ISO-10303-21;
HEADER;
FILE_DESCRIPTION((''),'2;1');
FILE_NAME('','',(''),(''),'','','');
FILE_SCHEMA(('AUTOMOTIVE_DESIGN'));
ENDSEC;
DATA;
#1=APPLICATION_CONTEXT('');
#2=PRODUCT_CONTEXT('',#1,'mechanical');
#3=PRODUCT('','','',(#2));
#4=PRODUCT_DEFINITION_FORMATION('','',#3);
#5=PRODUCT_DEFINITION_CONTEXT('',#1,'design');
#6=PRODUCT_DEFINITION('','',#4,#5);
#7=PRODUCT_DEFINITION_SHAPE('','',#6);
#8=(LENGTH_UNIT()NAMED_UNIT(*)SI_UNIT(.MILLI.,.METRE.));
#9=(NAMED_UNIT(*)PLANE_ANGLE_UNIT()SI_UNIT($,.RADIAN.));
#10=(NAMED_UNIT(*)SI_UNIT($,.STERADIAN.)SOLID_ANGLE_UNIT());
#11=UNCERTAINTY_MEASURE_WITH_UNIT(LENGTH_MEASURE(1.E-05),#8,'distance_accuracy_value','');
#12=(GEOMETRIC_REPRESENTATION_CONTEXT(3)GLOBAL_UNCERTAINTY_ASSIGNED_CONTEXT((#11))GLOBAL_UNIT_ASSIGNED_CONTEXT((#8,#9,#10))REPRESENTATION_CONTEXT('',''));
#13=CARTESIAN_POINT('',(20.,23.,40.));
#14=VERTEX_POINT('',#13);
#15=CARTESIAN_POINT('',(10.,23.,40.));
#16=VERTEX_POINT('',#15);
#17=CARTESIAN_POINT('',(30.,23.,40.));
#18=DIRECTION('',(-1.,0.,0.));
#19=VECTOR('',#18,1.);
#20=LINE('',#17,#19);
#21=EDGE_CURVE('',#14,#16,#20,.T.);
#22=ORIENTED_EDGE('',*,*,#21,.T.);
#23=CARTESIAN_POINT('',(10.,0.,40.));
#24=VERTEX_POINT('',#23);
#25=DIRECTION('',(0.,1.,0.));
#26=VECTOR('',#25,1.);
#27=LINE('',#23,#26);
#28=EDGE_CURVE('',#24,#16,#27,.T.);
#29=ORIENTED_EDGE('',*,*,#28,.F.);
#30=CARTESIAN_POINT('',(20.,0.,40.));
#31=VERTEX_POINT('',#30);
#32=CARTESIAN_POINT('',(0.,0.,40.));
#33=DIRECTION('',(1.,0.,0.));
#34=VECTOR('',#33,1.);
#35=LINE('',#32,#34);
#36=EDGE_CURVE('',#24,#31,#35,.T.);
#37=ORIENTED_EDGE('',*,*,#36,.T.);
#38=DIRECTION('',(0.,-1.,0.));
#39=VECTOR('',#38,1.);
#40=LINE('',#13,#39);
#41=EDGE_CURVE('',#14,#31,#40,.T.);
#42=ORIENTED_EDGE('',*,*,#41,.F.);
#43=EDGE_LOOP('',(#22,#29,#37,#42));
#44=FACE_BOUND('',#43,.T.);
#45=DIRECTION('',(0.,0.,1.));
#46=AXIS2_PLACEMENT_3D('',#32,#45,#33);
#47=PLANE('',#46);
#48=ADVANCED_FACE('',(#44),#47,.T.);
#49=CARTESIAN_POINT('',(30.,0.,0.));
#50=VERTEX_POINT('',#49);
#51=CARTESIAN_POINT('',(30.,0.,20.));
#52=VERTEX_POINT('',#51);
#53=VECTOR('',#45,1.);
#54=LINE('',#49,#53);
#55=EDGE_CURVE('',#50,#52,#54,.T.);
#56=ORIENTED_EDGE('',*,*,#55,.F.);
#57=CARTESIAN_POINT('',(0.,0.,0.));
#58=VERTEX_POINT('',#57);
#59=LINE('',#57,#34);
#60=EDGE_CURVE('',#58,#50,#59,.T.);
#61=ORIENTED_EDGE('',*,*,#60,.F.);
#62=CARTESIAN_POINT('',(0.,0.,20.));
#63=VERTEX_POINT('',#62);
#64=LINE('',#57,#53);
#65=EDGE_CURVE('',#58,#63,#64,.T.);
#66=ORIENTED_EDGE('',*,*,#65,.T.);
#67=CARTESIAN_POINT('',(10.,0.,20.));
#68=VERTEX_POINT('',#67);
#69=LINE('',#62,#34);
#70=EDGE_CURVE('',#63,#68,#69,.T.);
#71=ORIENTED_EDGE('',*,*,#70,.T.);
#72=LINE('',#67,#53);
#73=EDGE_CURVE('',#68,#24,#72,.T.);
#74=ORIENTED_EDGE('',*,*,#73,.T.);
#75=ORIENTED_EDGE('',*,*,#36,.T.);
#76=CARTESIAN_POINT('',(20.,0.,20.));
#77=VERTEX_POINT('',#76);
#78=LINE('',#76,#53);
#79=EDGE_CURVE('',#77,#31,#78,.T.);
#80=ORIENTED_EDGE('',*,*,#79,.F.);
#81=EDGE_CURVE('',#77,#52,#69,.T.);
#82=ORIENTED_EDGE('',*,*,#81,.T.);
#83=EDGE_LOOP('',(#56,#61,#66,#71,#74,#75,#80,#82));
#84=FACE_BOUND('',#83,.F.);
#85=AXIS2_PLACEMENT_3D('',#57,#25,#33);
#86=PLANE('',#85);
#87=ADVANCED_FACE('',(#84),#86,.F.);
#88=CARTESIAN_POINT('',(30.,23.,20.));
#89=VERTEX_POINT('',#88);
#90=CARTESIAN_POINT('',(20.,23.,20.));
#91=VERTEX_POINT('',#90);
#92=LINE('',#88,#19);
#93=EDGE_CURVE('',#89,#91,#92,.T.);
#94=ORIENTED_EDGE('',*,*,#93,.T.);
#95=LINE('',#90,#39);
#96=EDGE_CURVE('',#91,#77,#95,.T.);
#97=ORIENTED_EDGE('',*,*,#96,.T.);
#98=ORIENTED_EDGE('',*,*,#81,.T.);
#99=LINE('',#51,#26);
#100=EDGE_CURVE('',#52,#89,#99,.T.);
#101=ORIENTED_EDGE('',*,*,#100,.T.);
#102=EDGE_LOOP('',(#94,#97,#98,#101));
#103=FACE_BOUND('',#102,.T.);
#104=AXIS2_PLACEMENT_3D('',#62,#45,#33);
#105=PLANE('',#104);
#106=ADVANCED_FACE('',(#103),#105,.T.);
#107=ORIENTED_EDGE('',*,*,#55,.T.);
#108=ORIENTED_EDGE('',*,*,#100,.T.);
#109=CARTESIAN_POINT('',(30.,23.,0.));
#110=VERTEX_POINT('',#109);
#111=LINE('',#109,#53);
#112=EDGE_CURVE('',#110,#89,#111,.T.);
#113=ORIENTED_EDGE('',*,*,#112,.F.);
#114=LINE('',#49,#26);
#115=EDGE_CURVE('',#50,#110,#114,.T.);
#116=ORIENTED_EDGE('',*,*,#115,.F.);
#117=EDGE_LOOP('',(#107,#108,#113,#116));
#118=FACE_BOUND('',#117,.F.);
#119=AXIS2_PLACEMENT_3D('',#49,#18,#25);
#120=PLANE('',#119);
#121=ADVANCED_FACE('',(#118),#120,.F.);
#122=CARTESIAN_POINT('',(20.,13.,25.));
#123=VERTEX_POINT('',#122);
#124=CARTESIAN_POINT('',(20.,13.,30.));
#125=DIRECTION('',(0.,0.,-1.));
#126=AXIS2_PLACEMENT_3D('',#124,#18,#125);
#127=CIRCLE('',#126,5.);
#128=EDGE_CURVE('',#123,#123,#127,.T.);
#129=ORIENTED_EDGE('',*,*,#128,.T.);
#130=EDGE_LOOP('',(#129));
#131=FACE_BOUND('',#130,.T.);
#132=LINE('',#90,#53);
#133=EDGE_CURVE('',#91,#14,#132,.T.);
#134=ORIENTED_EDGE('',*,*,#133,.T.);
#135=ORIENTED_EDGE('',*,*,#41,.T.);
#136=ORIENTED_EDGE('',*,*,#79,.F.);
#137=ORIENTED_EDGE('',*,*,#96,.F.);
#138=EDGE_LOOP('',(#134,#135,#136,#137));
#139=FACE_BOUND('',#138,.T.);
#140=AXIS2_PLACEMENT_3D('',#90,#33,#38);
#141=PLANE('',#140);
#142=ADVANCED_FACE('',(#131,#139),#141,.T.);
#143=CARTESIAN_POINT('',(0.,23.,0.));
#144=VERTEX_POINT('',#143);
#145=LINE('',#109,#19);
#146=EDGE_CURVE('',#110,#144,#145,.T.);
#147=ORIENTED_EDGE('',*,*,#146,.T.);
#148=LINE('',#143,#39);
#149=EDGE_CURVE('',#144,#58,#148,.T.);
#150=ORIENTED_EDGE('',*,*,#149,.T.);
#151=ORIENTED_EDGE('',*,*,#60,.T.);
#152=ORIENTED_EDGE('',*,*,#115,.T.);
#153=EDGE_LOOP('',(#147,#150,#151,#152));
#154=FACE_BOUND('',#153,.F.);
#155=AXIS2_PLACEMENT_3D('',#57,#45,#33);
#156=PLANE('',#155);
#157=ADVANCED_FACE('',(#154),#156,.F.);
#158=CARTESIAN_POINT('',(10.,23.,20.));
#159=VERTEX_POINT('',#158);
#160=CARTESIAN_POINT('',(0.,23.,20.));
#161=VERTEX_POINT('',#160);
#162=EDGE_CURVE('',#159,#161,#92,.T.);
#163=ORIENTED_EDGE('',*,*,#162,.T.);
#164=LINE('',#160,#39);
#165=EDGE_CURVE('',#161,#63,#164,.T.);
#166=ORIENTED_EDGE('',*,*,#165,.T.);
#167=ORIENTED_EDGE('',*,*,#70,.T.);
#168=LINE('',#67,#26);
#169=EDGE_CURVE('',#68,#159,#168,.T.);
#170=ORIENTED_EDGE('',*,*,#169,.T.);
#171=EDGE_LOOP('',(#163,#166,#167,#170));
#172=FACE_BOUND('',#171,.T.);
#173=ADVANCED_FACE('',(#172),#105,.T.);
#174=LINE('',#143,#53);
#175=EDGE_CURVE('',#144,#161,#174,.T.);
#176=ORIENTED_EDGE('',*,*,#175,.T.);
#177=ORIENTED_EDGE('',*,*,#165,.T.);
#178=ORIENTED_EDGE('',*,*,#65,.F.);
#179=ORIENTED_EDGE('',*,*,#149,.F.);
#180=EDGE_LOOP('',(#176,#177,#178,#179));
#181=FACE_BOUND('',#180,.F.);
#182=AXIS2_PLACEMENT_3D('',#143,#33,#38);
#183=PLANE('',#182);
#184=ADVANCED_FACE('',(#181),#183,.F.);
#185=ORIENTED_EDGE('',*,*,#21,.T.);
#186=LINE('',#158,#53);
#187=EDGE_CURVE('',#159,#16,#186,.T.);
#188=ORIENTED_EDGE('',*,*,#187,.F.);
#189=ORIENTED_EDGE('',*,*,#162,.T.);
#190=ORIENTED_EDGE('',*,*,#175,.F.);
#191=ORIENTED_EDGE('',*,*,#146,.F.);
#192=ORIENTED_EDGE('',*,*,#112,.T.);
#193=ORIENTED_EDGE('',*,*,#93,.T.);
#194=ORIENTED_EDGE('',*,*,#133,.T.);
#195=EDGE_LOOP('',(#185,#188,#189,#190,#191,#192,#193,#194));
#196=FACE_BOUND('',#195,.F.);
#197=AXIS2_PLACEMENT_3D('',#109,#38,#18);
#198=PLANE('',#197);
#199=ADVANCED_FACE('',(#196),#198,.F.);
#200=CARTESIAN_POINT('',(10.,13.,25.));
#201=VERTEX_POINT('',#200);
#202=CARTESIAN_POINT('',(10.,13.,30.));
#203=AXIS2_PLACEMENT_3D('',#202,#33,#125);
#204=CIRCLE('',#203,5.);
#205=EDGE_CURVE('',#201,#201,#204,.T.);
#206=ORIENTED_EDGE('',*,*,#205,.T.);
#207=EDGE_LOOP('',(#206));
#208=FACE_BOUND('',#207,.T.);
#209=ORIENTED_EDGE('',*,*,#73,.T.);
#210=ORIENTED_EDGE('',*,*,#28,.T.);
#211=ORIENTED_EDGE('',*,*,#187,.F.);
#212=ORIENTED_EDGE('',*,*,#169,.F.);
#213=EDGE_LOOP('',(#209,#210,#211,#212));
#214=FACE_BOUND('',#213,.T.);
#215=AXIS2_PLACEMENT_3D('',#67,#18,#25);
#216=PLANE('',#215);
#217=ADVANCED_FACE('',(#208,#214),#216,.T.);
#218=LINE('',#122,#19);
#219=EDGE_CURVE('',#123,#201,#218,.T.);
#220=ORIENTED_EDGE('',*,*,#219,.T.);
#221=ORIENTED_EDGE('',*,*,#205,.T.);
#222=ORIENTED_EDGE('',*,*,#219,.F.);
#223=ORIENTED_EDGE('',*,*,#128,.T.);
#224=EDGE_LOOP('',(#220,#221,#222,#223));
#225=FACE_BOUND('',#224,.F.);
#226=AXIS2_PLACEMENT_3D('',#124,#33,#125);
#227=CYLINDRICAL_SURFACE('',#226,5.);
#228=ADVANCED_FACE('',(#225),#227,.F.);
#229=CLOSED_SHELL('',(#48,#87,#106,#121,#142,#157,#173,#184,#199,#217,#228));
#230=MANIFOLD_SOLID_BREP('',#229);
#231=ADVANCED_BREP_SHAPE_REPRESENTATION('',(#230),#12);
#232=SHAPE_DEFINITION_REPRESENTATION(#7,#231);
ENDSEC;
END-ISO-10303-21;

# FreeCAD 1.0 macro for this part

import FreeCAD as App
import Part
import Sketcher
Q = App.Units.Quantity


def add_polygon(sketch, points):
    """Adds a closed chain of lines whose ends are joined by coincident constraints."""
    first, n = sketch.GeometryCount, len(points)
    for a, b in zip(points, points[1:] + points[:1]):
        sketch.addGeometry(Part.LineSegment(App.Vector(*a, 0), App.Vector(*b, 0)), False)
    for i in range(n):
        sketch.addConstraint(Sketcher.Constraint("Coincident", first + i, 2, first + (i + 1) % n, 1))

doc = App.newDocument("Part")
body = doc.addObject("PartDesign::Body", "Body")

# Sketch on XY plane
sketch1 = doc.addObject("Sketcher::SketchObject", "Sketch")
body.addObject(sketch1)
sketch1.AttachmentSupport = (doc.XY_Plane, [""])
sketch1.MapMode = "FlatFace"
add_polygon(sketch1, [(0, 23), (0, 0), (30, 0), (30, 23)])  # lines 0-3
sketch1.addConstraint([
    Sketcher.Constraint("Vertical", 0),
    Sketcher.Constraint("Horizontal", 1),
    Sketcher.Constraint("Vertical", 2),
    Sketcher.Constraint("Horizontal", 3),
    Sketcher.Constraint("Coincident", 0, 2, -1, 1),
    Sketcher.Constraint("DistanceX", 1, 1, 1, 2, Q("30 mm")),
    Sketcher.Constraint("DistanceY", 0, 2, 0, 1, Q("23 mm")),
])
pad1 = doc.addObject("PartDesign::Pad", "Pad")
body.addObject(pad1)
pad1.Profile = sketch1
pad1.Length = 20

# Sketch on XY plane
sketch2 = doc.addObject("Sketcher::SketchObject", "Sketch001")
body.addObject(sketch2)
sketch2.AttachmentSupport = (doc.XY_Plane, [""])
sketch2.MapMode = "FlatFace"
sketch2.AttachmentOffset = App.Placement(App.Vector(0, 0, 20), App.Rotation())
add_polygon(sketch2, [(20, 0), (20, 23), (10, 23), (10, 0)])  # lines 0-3
sketch2.addConstraint([
    Sketcher.Constraint("Vertical", 0),
    Sketcher.Constraint("Horizontal", 1),
    Sketcher.Constraint("Vertical", 2),
    Sketcher.Constraint("Horizontal", 3),
    Sketcher.Constraint("PointOnObject", 2, 2, -1),
    Sketcher.Constraint("DistanceX", 1, 2, 1, 1, Q("10 mm")),
    Sketcher.Constraint("DistanceX", -1, 1, 1, 2, Q("10 mm")),
    Sketcher.Constraint("DistanceY", 0, 1, 0, 2, Q("23 mm")),
])
pad2 = doc.addObject("PartDesign::Pad", "Pad001")
body.addObject(pad2)
pad2.Profile = sketch2
pad2.Length = 20

# Sketch on YZ plane
sketch3 = doc.addObject("Sketcher::SketchObject", "Sketch002")
body.addObject(sketch3)
sketch3.AttachmentSupport = (doc.YZ_Plane, [""])
sketch3.MapMode = "FlatFace"
sketch3.AttachmentOffset = App.Placement(App.Vector(0, 0, 20), App.Rotation())
sketch3.addGeometry(Part.Circle(App.Vector(13, 30, 0), App.Vector(0, 0, 1), 5), False)
sketch3.addConstraint([
    Sketcher.Constraint("Diameter", 0, Q("10 mm")),
    Sketcher.Constraint("DistanceX", -1, 1, 0, 3, Q("13 mm")),
    Sketcher.Constraint("DistanceY", -1, 1, 0, 3, Q("30 mm")),
])
pocket1 = doc.addObject("PartDesign::Pocket", "Pocket")
body.addObject(pocket1)
pocket1.Profile = sketch3
pocket1.Length = 20

doc.recompute()
